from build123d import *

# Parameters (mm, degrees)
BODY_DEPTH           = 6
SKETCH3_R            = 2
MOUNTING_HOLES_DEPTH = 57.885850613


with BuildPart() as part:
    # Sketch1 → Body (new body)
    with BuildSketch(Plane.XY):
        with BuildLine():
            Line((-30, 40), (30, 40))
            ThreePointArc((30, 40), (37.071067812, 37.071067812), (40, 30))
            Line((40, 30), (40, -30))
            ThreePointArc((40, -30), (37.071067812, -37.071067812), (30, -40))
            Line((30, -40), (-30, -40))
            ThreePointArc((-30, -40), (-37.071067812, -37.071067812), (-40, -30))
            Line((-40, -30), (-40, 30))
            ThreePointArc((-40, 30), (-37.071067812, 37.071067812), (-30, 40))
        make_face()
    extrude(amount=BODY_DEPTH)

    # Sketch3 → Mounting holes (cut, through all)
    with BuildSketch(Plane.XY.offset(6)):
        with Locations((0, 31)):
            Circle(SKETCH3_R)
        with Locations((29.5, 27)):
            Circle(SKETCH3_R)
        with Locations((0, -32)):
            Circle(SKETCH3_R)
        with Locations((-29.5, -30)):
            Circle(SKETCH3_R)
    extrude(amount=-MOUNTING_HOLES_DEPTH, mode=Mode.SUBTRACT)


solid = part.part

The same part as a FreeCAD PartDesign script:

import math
import FreeCAD as App
import Part
import Sketcher
Q = App.Units.Quantity

doc = App.newDocument("Part")
body = doc.addObject("PartDesign::Body", "Body")

# Sketch on XY plane
sketch1 = body.newObject("Sketcher::SketchObject", "Sketch")
sketch1.AttachmentSupport = (doc.getObject("XY_Plane"), [""])
sketch1.MapMode = "FlatFace"
sketch1.addGeometry(Part.LineSegment(App.Vector(30, 40, 0), App.Vector(-30, 40, 0)), False)
sketch1.addGeometry(Part.ArcOfCircle(Part.Circle(App.Vector(-30, 30, 0), App.Vector(0, 0, 1), 10), math.radians(90), math.radians(180)), False)
sketch1.addGeometry(Part.LineSegment(App.Vector(-40, 30, 0), App.Vector(-40, -30, 0)), False)
sketch1.addGeometry(Part.ArcOfCircle(Part.Circle(App.Vector(-30, -30, 0), App.Vector(0, 0, 1), 10), math.radians(180), math.radians(270)), False)
sketch1.addGeometry(Part.LineSegment(App.Vector(-30, -40, 0), App.Vector(30, -40, 0)), False)
sketch1.addGeometry(Part.ArcOfCircle(Part.Circle(App.Vector(30, -30, 0), App.Vector(0, 0, 1), 10), math.radians(-90), math.radians(0)), False)
sketch1.addGeometry(Part.LineSegment(App.Vector(40, -30, 0), App.Vector(40, 30, 0)), False)
sketch1.addGeometry(Part.ArcOfCircle(Part.Circle(App.Vector(30, 30, 0), App.Vector(0, 0, 1), 10), math.radians(0), math.radians(90)), False)
sketch1.addConstraint(Sketcher.Constraint("Tangent", 0, 2, 1, 1))
sketch1.addConstraint(Sketcher.Constraint("Tangent", 1, 2, 2, 1))
sketch1.addConstraint(Sketcher.Constraint("Tangent", 2, 2, 3, 1))
sketch1.addConstraint(Sketcher.Constraint("Tangent", 3, 2, 4, 1))
sketch1.addConstraint(Sketcher.Constraint("Tangent", 4, 2, 5, 1))
sketch1.addConstraint(Sketcher.Constraint("Tangent", 5, 2, 6, 1))
sketch1.addConstraint(Sketcher.Constraint("Tangent", 6, 2, 7, 1))
sketch1.addConstraint(Sketcher.Constraint("Tangent", 7, 2, 0, 1))
sketch1.addConstraint(Sketcher.Constraint("Horizontal", 0))
sketch1.addConstraint(Sketcher.Constraint("Vertical", 2))
sketch1.addConstraint(Sketcher.Constraint("Horizontal", 4))
sketch1.addConstraint(Sketcher.Constraint("Vertical", 6))
sketch1.addConstraint(Sketcher.Constraint("Equal", 1, 3))
sketch1.addConstraint(Sketcher.Constraint("Equal", 3, 5))
sketch1.addConstraint(Sketcher.Constraint("Equal", 5, 7))
sketch1.addConstraint(Sketcher.Constraint("Symmetric", 1, 3, 5, 3, -1, 1))
sketch1.addConstraint(Sketcher.Constraint("Equal", 4, 2))
sketch1.addConstraint(Sketcher.Constraint("Radius", 1, Q("10 mm")))
sketch1.addConstraint(Sketcher.Constraint("DistanceX", 0, 2, 0, 1, Q("60 mm")))
pad1 = body.newObject("PartDesign::Pad", "Pad")
pad1.Profile = sketch1
pad1.Length = 6

# Sketch on XY plane
sketch2 = body.newObject("Sketcher::SketchObject", "Sketch001")
sketch2.AttachmentSupport = (doc.getObject("XY_Plane"), [""])
sketch2.MapMode = "FlatFace"
sketch2.AttachmentOffset = App.Placement(App.Vector(0, 0, 6), App.Rotation())
sketch2.addGeometry(Part.Circle(App.Vector(0, 31, 0), App.Vector(0, 0, 1), 2), False)
sketch2.addGeometry(Part.Circle(App.Vector(29.5, 27, 0), App.Vector(0, 0, 1), 2), False)
sketch2.addGeometry(Part.Circle(App.Vector(0, -32, 0), App.Vector(0, 0, 1), 2), False)
sketch2.addGeometry(Part.Circle(App.Vector(-29.5, -30, 0), App.Vector(0, 0, 1), 2), False)
sketch2.addConstraint(Sketcher.Constraint("Equal", 0, 1))
sketch2.addConstraint(Sketcher.Constraint("Equal", 1, 2))
sketch2.addConstraint(Sketcher.Constraint("Equal", 2, 3))
sketch2.addConstraint(Sketcher.Constraint("PointOnObject", 0, 3, -2))
sketch2.addConstraint(Sketcher.Constraint("PointOnObject", 2, 3, -2))
sketch2.addConstraint(Sketcher.Constraint("Diameter", 0, Q("4 mm")))
sketch2.addConstraint(Sketcher.Constraint("DistanceY", -1, 1, 0, 3, Q("31 mm")))
sketch2.addConstraint(Sketcher.Constraint("DistanceY", -1, 1, 1, 3, Q("27 mm")))
sketch2.addConstraint(Sketcher.Constraint("DistanceY", 2, 3, -1, 1, Q("32 mm")))
sketch2.addConstraint(Sketcher.Constraint("DistanceY", 3, 3, -1, 1, Q("30 mm")))
sketch2.addConstraint(Sketcher.Constraint("DistanceX", 3, 3, 1, 3, Q("59 mm")))
sketch2.addConstraint(Sketcher.Constraint("DistanceX", -1, 1, 1, 3, Q("29.5 mm")))
pocket1 = body.newObject("PartDesign::Pocket", "Pocket")
pocket1.Profile = sketch2
pocket1.Type = "ThroughAll"

doc.recompute()
